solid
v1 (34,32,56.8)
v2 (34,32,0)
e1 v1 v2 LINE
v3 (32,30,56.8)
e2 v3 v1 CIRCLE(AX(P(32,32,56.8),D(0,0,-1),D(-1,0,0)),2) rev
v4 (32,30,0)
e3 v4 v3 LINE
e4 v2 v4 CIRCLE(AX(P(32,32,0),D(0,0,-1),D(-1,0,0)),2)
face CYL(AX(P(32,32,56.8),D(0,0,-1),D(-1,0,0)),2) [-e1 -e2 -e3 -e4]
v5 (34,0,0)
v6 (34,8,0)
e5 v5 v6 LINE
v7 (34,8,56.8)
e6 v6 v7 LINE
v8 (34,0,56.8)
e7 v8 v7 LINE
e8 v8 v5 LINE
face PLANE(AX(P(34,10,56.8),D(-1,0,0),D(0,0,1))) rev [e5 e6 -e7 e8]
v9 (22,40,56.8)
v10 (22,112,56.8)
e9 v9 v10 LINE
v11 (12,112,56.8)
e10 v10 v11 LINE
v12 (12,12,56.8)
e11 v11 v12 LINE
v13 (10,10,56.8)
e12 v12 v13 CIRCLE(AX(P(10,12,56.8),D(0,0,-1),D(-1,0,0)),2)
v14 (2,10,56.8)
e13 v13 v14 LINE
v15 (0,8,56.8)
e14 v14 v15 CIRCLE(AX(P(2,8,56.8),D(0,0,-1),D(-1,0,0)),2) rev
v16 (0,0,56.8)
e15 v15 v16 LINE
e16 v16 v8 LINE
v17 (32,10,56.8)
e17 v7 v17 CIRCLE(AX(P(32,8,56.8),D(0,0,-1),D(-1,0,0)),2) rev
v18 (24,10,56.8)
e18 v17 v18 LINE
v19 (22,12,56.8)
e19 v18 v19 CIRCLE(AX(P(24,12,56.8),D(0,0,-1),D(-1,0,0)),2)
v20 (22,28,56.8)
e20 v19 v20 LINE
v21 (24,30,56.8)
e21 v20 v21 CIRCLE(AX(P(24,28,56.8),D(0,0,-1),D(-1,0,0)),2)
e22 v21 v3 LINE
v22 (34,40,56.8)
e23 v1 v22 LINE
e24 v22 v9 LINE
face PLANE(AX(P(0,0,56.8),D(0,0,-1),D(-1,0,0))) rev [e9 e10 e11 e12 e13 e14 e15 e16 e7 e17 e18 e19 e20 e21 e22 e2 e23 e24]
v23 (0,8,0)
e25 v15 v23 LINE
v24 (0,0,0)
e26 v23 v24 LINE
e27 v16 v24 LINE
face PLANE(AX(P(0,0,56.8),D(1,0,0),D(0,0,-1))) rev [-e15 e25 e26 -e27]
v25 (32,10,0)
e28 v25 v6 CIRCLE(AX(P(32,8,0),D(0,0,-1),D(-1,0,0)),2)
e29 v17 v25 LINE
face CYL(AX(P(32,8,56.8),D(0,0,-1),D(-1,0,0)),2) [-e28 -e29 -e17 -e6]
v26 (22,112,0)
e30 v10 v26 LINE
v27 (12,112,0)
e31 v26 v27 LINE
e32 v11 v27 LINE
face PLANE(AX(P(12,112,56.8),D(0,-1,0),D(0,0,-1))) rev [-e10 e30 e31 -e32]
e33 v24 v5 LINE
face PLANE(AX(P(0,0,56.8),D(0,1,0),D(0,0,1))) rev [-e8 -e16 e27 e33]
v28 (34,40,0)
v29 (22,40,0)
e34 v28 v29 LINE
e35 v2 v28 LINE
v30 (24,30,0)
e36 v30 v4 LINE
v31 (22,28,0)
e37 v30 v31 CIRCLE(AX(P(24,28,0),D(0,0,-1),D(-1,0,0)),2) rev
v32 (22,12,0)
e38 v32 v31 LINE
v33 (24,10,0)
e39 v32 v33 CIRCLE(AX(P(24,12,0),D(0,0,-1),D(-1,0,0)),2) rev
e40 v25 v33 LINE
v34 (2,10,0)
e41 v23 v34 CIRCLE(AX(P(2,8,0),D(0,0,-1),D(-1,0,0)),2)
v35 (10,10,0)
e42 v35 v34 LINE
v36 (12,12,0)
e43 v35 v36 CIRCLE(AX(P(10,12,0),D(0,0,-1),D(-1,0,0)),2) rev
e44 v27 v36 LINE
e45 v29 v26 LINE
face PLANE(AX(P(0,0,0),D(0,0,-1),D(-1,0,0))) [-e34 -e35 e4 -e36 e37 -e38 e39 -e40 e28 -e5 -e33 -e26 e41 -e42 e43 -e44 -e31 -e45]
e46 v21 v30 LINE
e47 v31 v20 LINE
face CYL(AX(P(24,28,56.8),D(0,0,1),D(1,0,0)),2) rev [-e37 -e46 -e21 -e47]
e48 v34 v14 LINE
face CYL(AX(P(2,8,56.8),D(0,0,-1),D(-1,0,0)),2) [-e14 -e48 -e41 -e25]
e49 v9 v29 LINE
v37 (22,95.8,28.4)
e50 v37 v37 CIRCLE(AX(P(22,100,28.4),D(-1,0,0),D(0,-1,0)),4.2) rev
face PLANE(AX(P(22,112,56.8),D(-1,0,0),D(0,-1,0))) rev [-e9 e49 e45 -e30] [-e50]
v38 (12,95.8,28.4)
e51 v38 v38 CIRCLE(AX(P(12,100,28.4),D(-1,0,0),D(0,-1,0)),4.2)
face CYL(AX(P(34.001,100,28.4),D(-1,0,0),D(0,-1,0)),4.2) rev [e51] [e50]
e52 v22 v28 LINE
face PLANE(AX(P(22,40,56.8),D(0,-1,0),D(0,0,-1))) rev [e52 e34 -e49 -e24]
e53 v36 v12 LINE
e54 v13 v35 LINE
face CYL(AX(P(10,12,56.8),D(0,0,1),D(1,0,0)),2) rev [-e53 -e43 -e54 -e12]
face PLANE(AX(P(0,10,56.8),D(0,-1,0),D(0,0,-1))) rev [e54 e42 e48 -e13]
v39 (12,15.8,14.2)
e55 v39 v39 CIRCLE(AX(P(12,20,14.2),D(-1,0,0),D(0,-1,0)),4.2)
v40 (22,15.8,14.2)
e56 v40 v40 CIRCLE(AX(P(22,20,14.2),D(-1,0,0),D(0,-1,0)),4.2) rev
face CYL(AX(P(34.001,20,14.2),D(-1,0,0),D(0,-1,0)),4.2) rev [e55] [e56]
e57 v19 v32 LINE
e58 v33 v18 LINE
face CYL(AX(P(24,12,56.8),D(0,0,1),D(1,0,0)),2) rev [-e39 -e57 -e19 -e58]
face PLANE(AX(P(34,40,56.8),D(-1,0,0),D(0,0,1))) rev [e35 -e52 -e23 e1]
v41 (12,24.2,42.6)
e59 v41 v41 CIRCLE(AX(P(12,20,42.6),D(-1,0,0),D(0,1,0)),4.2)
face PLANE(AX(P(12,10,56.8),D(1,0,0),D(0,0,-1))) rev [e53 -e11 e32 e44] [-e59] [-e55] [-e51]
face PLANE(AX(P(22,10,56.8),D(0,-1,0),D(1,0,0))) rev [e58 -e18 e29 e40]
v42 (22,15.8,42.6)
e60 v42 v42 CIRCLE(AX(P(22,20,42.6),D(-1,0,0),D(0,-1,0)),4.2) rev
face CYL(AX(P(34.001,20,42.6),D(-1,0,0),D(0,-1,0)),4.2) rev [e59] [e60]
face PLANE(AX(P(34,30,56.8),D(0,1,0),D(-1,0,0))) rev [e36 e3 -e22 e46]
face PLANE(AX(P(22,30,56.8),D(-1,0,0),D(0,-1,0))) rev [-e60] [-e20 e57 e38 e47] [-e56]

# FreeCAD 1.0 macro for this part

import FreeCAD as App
import Part
import Sketcher
from FreeCAD import Vector
Q = App.Units.Quantity


def edges_at(feature, points):
    """Names of the edges that pass closest to the given points."""
    edges = feature.Shape.Edges
    near = lambda p: min(range(len(edges)), key=lambda i: edges[i].distToShape(Part.Vertex(*p))[0])
    return sorted({f"Edge{near(p) + 1}" for p in points})

doc = App.newDocument("Part")
params = doc.addObject("Spreadsheet::Sheet", "Params")
for row, (alias, value) in enumerate([
    ("sketch1_width", "34 mm"),
    ("sketch1_width2", "12 mm"),
    ("sketch1_height", "20 mm"),
    ("sketch1_height2", "72 mm"),
    ("pad1_length", "56.8 mm"),
    ("sketch2_diameter", "8.4 mm"),
    ("sketch3_diameter", "8.4 mm"),
    ("sketch4_diameter", "8.4 mm"),
    ("fillet_radius", "2 mm"),
], start=1):
    params.set(f"A{row}", alias)
    params.set(f"B{row}", "=" + value)
    params.setAlias(f"B{row}", alias)

body = doc.addObject("PartDesign::Body", "Body")

sketch1 = body.newObject("Sketcher::SketchObject", "Sketch")
sketch1.AttachmentSupport = (doc.getObject("XY_Plane"), [""])
sketch1.MapMode = "FlatFace"
sketch1.addGeometry(Part.LineSegment(Vector(0, 10, 0), Vector(0, 0, 0)), False)
sketch1.addGeometry(Part.LineSegment(Vector(0, 0, 0), Vector(34, 0, 0)), False)
sketch1.addGeometry(Part.LineSegment(Vector(34, 0, 0), Vector(34, 10, 0)), False)
sketch1.addGeometry(Part.LineSegment(Vector(34, 10, 0), Vector(22, 10, 0)), False)
sketch1.addGeometry(Part.LineSegment(Vector(22, 10, 0), Vector(22, 30, 0)), False)
sketch1.addGeometry(Part.LineSegment(Vector(22, 30, 0), Vector(34, 30, 0)), False)
sketch1.addGeometry(Part.LineSegment(Vector(34, 30, 0), Vector(34, 40, 0)), False)
sketch1.addGeometry(Part.LineSegment(Vector(34, 40, 0), Vector(22, 40, 0)), False)
sketch1.addGeometry(Part.LineSegment(Vector(22, 40, 0), Vector(22, 112, 0)), False)
sketch1.addGeometry(Part.LineSegment(Vector(22, 112, 0), Vector(12, 112, 0)), False)
sketch1.addGeometry(Part.LineSegment(Vector(12, 112, 0), Vector(12, 10, 0)), False)
sketch1.addGeometry(Part.LineSegment(Vector(12, 10, 0), Vector(0, 10, 0)), False)
sketch1.addConstraint(Sketcher.Constraint("Coincident", 0, 2, 1, 1))
sketch1.addConstraint(Sketcher.Constraint("Coincident", 1, 2, 2, 1))
sketch1.addConstraint(Sketcher.Constraint("Coincident", 2, 2, 3, 1))
sketch1.addConstraint(Sketcher.Constraint("Coincident", 3, 2, 4, 1))
sketch1.addConstraint(Sketcher.Constraint("Coincident", 4, 2, 5, 1))
sketch1.addConstraint(Sketcher.Constraint("Coincident", 5, 2, 6, 1))
sketch1.addConstraint(Sketcher.Constraint("Coincident", 6, 2, 7, 1))
sketch1.addConstraint(Sketcher.Constraint("Coincident", 7, 2, 8, 1))
sketch1.addConstraint(Sketcher.Constraint("Coincident", 8, 2, 9, 1))
sketch1.addConstraint(Sketcher.Constraint("Coincident", 9, 2, 10, 1))
sketch1.addConstraint(Sketcher.Constraint("Coincident", 10, 2, 11, 1))
sketch1.addConstraint(Sketcher.Constraint("Coincident", 11, 2, 0, 1))
sketch1.addConstraint(Sketcher.Constraint("Vertical", 0))
sketch1.addConstraint(Sketcher.Constraint("Horizontal", 1))
sketch1.addConstraint(Sketcher.Constraint("Vertical", 2))
sketch1.addConstraint(Sketcher.Constraint("Horizontal", 3))
sketch1.addConstraint(Sketcher.Constraint("Vertical", 4))
sketch1.addConstraint(Sketcher.Constraint("Horizontal", 5))
sketch1.addConstraint(Sketcher.Constraint("Vertical", 6))
sketch1.addConstraint(Sketcher.Constraint("Horizontal", 7))
sketch1.addConstraint(Sketcher.Constraint("Vertical", 8))
sketch1.addConstraint(Sketcher.Constraint("Horizontal", 9))
sketch1.addConstraint(Sketcher.Constraint("Vertical", 10))
sketch1.addConstraint(Sketcher.Constraint("Horizontal", 11))
sketch1.addConstraint(Sketcher.Constraint("Coincident", 0, 2, -1, 1))
sketch1.addConstraint(Sketcher.Constraint("Horizontal", 3, 2, 10, 2))
sketch1.addConstraint(Sketcher.Constraint("Vertical", 2, 2, 5, 2))
sketch1.addConstraint(Sketcher.Constraint("Vertical", 4, 2, 7, 2))
sketch1.addConstraint(Sketcher.Constraint("Equal", 7, 11))
sketch1.addConstraint(Sketcher.Constraint("Equal", 9, 0))
sketch1.addConstraint(Sketcher.Constraint("Equal", 2, 6))
sketch1.addConstraint(Sketcher.Constraint("DistanceX", 1, 1, 1, 2, Q("34 mm")))
sketch1.addConstraint(Sketcher.Constraint("DistanceX", 3, 2, 3, 1, Q("12 mm")))
sketch1.addConstraint(Sketcher.Constraint("DistanceY", 4, 1, 4, 2, Q("20 mm")))
sketch1.addConstraint(Sketcher.Constraint("DistanceY", 8, 1, 8, 2, Q("72 mm")))
sketch1.setExpression("Constraints[31]", "Params.sketch1_width")
sketch1.setExpression("Constraints[32]", "Params.sketch1_width2")
sketch1.setExpression("Constraints[33]", "Params.sketch1_height")
sketch1.setExpression("Constraints[34]", "Params.sketch1_height2")
pad1 = body.newObject("PartDesign::Pad", "Pad")
pad1.Profile = sketch1
pad1.setExpression("Length", "Params.pad1_length")

sketch2 = body.newObject("Sketcher::SketchObject", "Sketch001")
sketch2.AttachmentSupport = (doc.getObject("YZ_Plane"), [""])
sketch2.MapMode = "FlatFace"
sketch2.AttachmentOffset = App.Placement(Vector(0, 0, 12), App.Rotation())
sketch2.addGeometry(Part.Circle(Vector(20, 14.2, 0), Vector(0, 0, 1), 4.2), False)
sketch2.addConstraint(Sketcher.Constraint("Diameter", 0, Q("8.4 mm")))
sketch2.addConstraint(Sketcher.Constraint("DistanceX", -1, 1, 0, 3, Q("20 mm")))
sketch2.addConstraint(Sketcher.Constraint("DistanceY", -1, 1, 0, 3, Q("14.2 mm")))
sketch2.setExpression("Constraints[0]", "Params.sketch2_diameter")
pocket1 = body.newObject("PartDesign::Pocket", "Pocket")
pocket1.Profile = sketch2
pocket1.Type = "UpToFirst"
pocket1.Reversed = True

sketch3 = body.newObject("Sketcher::SketchObject", "Sketch002")
sketch3.AttachmentSupport = (doc.getObject("YZ_Plane"), [""])
sketch3.MapMode = "FlatFace"
sketch3.AttachmentOffset = App.Placement(Vector(0, 0, 12), App.Rotation())
sketch3.addGeometry(Part.Circle(Vector(20, 42.6, 0), Vector(0, 0, 1), 4.2), False)
sketch3.addConstraint(Sketcher.Constraint("Diameter", 0, Q("8.4 mm")))
sketch3.addConstraint(Sketcher.Constraint("DistanceX", -1, 1, 0, 3, Q("20 mm")))
sketch3.addConstraint(Sketcher.Constraint("DistanceY", -1, 1, 0, 3, Q("42.6 mm")))
sketch3.setExpression("Constraints[0]", "Params.sketch3_diameter")
pocket2 = body.newObject("PartDesign::Pocket", "Pocket001")
pocket2.Profile = sketch3
pocket2.Type = "UpToFirst"
pocket2.Reversed = True

sketch4 = body.newObject("Sketcher::SketchObject", "Sketch003")
sketch4.AttachmentSupport = (doc.getObject("YZ_Plane"), [""])
sketch4.MapMode = "FlatFace"
sketch4.AttachmentOffset = App.Placement(Vector(0, 0, 12), App.Rotation())
sketch4.addGeometry(Part.Circle(Vector(100, 28.4, 0), Vector(0, 0, 1), 4.2), False)
sketch4.addConstraint(Sketcher.Constraint("Diameter", 0, Q("8.4 mm")))
sketch4.addConstraint(Sketcher.Constraint("DistanceX", -1, 1, 0, 3, Q("100 mm")))
sketch4.addConstraint(Sketcher.Constraint("DistanceY", -1, 1, 0, 3, Q("28.4 mm")))
sketch4.setExpression("Constraints[0]", "Params.sketch4_diameter")
pocket3 = body.newObject("PartDesign::Pocket", "Pocket002")
pocket3.Profile = sketch4
pocket3.Type = "UpToFirst"
pocket3.Reversed = True
doc.recompute()

fillet = body.newObject("PartDesign::Fillet", "Fillet")
fillet.Base = (pocket3, edges_at(pocket3, [
    (0, 10, 28.4),
    (12, 10, 28.4),
    (34, 30, 28.4),
    (22, 30, 28.4),
    (22, 10, 28.4),
    (34, 10, 28.4),
]))
fillet.setExpression("Radius", "Params.fillet_radius")

doc.recompute()
